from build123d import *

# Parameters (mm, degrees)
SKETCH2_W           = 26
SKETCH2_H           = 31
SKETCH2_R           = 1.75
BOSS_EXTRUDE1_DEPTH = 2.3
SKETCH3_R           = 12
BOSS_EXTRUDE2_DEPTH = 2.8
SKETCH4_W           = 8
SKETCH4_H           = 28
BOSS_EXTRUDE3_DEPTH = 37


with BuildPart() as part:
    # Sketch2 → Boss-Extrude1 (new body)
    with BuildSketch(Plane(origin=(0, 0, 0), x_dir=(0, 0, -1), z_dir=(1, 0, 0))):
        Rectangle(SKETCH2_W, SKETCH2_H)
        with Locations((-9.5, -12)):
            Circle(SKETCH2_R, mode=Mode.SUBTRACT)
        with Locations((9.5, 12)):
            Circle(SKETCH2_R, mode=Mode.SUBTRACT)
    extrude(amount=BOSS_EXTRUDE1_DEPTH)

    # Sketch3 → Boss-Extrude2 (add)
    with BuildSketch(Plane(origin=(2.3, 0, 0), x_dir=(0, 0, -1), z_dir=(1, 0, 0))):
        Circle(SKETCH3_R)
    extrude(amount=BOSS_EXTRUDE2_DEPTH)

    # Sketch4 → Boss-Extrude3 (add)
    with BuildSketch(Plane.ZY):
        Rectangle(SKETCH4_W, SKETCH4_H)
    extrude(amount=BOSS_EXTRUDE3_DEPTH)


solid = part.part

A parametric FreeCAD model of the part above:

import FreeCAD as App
import Part
import Sketcher

V = App.Vector


def add_polygon(sketch, points):
    """Adds a closed chain of lines whose ends are joined by coincident constraints."""
    first, n = sketch.GeometryCount, len(points)
    for a, b in zip(points, points[1:] + points[:1]):
        sketch.addGeometry(Part.LineSegment(App.Vector(*a, 0), App.Vector(*b, 0)), False)
    for i in range(n):
        sketch.addConstraint(Sketcher.Constraint("Coincident", first + i, 2, first + (i + 1) % n, 1))

doc = App.newDocument("Part")
body = doc.addObject("PartDesign::Body", "Body")

sketch1 = body.newObject("Sketcher::SketchObject", "Sketch")
sketch1.AttachmentSupport = (doc.getObject("YZ_Plane"), [""])
sketch1.MapMode = "FlatFace"
add_polygon(sketch1, [(15.5, 13), (-15.5, 13), (-15.5, -13), (15.5, -13)])
sketch1.addGeometry(Part.Circle(V(-12, 9.5, 0), V(0, 0, 1), 1.8), False)
sketch1.addGeometry(Part.Circle(V(12, -9.5, 0), V(0, 0, 1), 1.8), False)
sketch1.addConstraint(Sketcher.Constraint("Horizontal", 0))
sketch1.addConstraint(Sketcher.Constraint("Vertical", 1))
sketch1.addConstraint(Sketcher.Constraint("Horizontal", 2))
sketch1.addConstraint(Sketcher.Constraint("Vertical", 3))
sketch1.addConstraint(Sketcher.Constraint("Equal", 4, 5))
sketch1.addConstraint(Sketcher.Constraint("Symmetric", 4, 3, 5, 3, -1, 1))
sketch1.addConstraint(Sketcher.Constraint("Symmetric", 0, 2, 2, 2, -1, 1))
sketch1.addConstraint(Sketcher.Constraint("Diameter", 4, 3.5))
sketch1.addConstraint(Sketcher.Constraint("DistanceX", 0, 2, 0, 1, 31.0))
sketch1.addConstraint(Sketcher.Constraint("DistanceY", 1, 2, 1, 1, 26.0))
sketch1.addConstraint(Sketcher.Constraint("DistanceX", 4, 3, -1, 1, 12.0))
sketch1.addConstraint(Sketcher.Constraint("DistanceY", 5, 3, 4, 3, 19.0))
pad1 = body.newObject("PartDesign::Pad", "Pad")
pad1.Profile = sketch1
pad1.Length = 2.3

sketch2 = body.newObject("Sketcher::SketchObject", "Sketch001")
sketch2.AttachmentSupport = (doc.getObject("YZ_Plane"), [""])
sketch2.MapMode = "FlatFace"
sketch2.AttachmentOffset = App.Placement(V(0, 0, 2.3), App.Rotation())
sketch2.addGeometry(Part.Circle(V(0, 0, 0), V(0, 0, 1), 12), False)
sketch2.addConstraint(Sketcher.Constraint("Coincident", 0, 3, -1, 1))
sketch2.addConstraint(Sketcher.Constraint("Diameter", 0, 24.0))
pad2 = body.newObject("PartDesign::Pad", "Pad001")
pad2.Profile = sketch2
pad2.Length = 2.8

sketch3 = body.newObject("Sketcher::SketchObject", "Sketch002")
sketch3.AttachmentSupport = (doc.getObject("YZ_Plane"), [""])
sketch3.MapMode = "FlatFace"
add_polygon(sketch3, [(14, -4), (-14, -4), (-14, 4), (14, 4)])
sketch3.addConstraint(Sketcher.Constraint("Horizontal", 0))
sketch3.addConstraint(Sketcher.Constraint("Vertical", 1))
sketch3.addConstraint(Sketcher.Constraint("Horizontal", 2))
sketch3.addConstraint(Sketcher.Constraint("Vertical", 3))
sketch3.addConstraint(Sketcher.Constraint("Symmetric", 0, 2, 2, 2, -1, 1))
sketch3.addConstraint(Sketcher.Constraint("DistanceX", 0, 2, 0, 1, 28.0))
sketch3.addConstraint(Sketcher.Constraint("DistanceY", 1, 1, 1, 2, 8.0))
pad3 = body.newObject("PartDesign::Pad", "Pad002")
pad3.Profile = sketch3
pad3.Length = 37
pad3.Reversed = True

doc.recompute()
